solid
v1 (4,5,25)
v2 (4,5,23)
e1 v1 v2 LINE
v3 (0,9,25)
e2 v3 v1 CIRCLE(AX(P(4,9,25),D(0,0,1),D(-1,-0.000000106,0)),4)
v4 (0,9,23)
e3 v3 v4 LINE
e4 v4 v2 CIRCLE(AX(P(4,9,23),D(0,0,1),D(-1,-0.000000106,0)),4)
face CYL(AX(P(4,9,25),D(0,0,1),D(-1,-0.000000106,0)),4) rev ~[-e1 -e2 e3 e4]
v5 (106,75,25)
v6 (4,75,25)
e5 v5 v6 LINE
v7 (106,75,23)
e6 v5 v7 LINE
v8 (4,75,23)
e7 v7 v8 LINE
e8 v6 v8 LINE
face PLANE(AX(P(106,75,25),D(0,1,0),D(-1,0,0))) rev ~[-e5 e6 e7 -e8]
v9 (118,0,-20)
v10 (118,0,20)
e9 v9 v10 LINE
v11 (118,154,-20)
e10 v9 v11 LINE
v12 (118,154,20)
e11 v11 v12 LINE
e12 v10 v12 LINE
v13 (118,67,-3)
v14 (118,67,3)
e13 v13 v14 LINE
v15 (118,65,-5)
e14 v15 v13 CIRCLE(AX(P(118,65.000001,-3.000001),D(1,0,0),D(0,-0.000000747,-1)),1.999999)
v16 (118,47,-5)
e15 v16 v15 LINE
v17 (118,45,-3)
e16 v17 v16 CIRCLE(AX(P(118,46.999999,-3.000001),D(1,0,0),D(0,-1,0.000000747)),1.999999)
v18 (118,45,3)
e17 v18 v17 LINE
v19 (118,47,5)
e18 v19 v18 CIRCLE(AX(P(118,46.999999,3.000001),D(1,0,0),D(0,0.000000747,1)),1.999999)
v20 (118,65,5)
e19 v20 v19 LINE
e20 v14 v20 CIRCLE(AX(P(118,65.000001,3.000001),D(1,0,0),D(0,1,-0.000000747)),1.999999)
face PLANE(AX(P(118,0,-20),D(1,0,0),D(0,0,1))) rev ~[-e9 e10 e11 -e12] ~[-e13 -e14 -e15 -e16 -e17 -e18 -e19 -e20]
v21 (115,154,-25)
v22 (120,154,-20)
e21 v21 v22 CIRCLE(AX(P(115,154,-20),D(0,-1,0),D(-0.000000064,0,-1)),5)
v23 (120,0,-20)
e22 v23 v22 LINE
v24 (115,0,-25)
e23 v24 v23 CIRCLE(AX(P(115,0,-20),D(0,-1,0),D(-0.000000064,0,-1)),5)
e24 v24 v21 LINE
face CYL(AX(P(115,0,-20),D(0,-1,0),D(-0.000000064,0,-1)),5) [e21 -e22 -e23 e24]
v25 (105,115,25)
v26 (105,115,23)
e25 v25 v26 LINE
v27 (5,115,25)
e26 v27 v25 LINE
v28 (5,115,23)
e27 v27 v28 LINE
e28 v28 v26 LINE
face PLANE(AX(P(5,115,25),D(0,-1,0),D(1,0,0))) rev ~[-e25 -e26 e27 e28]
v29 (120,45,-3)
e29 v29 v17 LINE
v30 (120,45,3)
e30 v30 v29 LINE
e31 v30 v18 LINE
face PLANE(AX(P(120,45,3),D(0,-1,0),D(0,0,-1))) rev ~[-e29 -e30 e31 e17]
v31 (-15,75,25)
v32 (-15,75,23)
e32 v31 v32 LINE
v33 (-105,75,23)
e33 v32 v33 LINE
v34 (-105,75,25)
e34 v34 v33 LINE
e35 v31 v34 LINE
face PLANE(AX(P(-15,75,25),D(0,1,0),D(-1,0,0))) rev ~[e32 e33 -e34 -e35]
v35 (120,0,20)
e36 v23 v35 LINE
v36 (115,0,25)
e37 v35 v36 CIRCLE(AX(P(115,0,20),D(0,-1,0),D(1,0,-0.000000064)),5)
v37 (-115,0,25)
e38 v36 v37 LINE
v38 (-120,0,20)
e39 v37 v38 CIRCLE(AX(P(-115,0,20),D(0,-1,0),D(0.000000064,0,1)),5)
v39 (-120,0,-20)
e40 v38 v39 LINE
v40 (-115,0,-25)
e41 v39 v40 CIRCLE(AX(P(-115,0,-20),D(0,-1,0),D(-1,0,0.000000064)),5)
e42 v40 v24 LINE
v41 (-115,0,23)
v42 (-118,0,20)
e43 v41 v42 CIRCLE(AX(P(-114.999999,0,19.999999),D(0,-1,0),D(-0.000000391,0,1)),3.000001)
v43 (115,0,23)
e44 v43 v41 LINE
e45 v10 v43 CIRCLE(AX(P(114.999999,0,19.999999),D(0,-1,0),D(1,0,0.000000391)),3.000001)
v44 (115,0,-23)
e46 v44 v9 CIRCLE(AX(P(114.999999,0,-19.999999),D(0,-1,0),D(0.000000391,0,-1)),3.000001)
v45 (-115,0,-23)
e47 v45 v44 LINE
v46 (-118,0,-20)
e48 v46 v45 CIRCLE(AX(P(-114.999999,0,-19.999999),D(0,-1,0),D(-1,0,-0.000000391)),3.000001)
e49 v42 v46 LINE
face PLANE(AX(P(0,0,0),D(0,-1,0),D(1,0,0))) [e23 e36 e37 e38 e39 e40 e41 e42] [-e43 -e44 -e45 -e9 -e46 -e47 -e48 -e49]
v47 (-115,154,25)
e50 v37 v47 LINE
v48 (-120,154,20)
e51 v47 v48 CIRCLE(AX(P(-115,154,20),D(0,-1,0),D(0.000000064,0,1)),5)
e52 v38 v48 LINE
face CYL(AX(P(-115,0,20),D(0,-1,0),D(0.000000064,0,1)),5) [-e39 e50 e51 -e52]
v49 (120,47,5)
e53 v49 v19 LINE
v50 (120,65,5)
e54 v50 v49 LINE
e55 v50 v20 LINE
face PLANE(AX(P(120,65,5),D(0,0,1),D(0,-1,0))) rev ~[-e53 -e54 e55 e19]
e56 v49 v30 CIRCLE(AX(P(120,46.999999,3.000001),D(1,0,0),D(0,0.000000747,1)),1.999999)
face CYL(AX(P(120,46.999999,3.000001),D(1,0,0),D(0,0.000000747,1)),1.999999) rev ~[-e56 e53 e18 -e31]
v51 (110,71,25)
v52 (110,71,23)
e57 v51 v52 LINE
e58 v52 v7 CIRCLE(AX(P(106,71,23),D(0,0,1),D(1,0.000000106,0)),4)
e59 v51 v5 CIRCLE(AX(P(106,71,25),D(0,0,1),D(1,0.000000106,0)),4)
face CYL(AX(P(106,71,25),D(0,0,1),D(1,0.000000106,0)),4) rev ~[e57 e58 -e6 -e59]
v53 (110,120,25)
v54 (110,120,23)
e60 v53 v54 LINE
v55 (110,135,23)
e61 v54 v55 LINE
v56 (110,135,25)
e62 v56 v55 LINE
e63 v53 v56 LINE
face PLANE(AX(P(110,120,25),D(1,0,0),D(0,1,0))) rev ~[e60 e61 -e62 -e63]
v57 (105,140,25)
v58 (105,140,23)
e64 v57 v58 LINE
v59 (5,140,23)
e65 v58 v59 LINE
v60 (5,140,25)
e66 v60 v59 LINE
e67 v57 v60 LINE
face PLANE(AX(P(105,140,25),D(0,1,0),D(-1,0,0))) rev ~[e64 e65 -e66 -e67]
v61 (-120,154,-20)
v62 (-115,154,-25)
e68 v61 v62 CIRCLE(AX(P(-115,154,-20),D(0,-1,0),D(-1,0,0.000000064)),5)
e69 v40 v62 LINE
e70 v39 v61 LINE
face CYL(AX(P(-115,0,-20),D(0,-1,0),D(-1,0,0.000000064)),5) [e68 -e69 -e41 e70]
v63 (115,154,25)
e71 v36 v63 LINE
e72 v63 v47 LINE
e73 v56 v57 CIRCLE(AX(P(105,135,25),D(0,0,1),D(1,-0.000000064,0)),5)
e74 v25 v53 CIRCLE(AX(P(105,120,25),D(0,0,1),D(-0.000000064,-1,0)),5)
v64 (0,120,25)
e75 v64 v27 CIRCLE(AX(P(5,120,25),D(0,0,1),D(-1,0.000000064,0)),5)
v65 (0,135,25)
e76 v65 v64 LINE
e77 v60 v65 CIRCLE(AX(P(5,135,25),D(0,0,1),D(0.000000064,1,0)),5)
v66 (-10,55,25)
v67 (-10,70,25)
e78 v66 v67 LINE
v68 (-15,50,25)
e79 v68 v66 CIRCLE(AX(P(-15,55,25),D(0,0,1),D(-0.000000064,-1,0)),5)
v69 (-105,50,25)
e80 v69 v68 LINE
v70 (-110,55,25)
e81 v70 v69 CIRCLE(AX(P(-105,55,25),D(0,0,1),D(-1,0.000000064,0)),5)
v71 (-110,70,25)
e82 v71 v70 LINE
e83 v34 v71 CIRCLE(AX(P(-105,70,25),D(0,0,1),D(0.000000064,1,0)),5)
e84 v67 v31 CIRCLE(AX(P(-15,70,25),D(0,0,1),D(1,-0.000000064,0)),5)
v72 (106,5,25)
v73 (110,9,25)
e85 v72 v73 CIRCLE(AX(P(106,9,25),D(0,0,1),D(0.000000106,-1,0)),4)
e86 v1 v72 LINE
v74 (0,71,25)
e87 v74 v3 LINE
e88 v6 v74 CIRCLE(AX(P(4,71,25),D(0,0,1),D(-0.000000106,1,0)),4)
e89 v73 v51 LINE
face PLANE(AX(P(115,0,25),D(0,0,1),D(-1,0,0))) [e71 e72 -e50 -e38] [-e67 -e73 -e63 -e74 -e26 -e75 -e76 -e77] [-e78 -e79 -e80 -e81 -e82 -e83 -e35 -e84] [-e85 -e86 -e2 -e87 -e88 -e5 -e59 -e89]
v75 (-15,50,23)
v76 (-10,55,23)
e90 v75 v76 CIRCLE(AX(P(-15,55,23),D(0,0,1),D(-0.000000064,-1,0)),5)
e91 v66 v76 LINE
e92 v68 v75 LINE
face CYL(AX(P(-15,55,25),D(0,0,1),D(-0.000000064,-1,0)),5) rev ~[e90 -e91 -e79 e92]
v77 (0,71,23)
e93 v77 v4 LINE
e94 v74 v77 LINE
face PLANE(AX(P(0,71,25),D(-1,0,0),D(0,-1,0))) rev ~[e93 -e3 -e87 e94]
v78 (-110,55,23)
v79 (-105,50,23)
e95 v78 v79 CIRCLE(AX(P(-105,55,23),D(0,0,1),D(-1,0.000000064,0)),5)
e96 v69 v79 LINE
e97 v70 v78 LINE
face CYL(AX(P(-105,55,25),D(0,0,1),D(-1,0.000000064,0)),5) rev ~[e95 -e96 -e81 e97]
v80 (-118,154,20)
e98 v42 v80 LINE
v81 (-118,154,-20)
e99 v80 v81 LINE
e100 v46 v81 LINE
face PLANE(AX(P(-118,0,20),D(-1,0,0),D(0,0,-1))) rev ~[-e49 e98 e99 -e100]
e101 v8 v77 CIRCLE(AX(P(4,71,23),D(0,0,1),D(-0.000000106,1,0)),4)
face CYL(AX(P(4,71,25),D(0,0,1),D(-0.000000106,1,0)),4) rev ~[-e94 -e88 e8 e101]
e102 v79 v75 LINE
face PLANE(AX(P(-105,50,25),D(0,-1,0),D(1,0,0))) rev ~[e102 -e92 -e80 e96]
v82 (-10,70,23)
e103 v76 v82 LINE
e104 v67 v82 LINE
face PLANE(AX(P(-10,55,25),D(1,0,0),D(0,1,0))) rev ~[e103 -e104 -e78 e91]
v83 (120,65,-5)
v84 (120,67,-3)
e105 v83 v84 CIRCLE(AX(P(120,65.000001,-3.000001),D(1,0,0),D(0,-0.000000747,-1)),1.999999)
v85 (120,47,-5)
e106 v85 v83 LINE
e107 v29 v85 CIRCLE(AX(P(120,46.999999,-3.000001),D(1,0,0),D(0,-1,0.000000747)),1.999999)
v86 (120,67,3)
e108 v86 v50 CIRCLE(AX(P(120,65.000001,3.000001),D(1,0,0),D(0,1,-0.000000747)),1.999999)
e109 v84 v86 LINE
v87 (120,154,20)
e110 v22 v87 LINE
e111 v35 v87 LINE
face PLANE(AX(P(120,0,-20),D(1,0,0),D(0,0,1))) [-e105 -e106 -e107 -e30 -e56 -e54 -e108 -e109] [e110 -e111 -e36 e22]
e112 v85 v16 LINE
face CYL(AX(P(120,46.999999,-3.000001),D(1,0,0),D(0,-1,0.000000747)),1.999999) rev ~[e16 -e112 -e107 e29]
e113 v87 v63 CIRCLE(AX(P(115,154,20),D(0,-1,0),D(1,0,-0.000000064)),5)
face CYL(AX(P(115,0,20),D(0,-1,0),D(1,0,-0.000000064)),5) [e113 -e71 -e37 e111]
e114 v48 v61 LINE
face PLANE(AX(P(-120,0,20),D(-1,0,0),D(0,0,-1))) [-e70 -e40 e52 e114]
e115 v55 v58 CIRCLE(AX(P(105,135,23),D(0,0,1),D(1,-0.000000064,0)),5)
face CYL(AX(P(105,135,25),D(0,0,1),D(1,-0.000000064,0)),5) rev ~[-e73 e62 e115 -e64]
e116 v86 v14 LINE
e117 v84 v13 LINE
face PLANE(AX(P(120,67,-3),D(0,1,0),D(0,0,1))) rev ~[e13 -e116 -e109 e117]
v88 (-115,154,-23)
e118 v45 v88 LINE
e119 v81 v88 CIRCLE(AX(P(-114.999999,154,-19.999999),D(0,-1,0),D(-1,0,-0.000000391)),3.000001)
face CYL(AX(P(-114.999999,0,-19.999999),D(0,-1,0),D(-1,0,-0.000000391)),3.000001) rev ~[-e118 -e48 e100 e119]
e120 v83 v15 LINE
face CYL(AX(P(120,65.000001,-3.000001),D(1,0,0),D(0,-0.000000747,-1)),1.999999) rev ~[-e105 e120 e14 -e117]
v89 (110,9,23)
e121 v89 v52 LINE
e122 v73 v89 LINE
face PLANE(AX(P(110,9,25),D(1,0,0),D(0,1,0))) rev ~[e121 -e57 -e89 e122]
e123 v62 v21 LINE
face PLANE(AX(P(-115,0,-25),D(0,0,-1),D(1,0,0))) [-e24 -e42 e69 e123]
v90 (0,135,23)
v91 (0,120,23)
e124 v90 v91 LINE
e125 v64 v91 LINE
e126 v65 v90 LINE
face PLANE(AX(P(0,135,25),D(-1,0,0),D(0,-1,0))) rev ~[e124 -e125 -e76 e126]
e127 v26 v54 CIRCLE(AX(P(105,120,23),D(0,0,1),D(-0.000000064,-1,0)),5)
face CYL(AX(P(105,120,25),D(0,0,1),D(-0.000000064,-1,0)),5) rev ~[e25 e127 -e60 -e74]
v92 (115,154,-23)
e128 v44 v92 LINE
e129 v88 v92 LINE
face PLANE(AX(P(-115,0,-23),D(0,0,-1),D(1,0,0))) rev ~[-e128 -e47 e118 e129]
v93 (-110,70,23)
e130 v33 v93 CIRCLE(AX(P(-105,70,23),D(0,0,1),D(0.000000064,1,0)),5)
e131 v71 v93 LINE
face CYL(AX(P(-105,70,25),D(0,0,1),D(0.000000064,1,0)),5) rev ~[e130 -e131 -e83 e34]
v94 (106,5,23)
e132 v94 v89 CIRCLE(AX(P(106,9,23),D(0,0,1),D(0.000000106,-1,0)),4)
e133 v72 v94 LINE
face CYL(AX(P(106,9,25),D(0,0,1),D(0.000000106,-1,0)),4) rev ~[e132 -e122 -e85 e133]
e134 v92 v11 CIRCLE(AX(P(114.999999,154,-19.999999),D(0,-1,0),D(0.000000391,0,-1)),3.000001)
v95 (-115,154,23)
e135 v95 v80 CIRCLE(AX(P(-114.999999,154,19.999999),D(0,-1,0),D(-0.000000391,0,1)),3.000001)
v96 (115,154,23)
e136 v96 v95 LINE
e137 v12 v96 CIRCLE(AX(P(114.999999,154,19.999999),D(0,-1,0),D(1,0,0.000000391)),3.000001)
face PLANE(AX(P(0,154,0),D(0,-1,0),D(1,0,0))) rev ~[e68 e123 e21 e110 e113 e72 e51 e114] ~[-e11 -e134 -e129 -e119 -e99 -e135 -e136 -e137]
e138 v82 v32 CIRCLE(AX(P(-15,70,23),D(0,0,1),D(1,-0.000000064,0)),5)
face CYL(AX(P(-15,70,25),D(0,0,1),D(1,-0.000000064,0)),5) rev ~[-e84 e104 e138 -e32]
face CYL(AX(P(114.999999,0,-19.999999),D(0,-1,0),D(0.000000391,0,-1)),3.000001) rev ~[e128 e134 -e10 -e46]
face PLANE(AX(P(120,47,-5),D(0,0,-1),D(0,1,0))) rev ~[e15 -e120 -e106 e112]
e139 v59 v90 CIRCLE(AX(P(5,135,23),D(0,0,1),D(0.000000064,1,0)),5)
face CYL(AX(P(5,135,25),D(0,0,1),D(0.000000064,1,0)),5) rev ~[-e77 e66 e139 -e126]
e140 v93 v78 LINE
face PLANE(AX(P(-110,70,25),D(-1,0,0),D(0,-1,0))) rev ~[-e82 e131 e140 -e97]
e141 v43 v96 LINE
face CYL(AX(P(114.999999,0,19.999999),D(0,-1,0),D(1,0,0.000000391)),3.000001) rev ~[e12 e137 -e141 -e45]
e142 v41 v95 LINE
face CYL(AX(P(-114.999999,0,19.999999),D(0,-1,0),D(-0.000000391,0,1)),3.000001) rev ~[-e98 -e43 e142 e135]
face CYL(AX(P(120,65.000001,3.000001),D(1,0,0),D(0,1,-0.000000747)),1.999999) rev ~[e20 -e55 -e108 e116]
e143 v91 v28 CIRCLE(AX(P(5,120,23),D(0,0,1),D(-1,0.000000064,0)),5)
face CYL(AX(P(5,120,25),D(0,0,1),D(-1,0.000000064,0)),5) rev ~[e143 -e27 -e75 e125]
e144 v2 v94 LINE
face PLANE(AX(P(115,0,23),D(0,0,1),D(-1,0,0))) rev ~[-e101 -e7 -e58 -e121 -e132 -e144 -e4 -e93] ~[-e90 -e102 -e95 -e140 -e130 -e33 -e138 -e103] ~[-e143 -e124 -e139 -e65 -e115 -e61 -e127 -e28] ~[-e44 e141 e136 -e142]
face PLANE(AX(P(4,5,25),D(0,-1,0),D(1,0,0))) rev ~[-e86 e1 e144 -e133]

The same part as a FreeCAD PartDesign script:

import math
import FreeCAD as App
import Part
import Sketcher

V = App.Vector

doc = App.newDocument("Part")
body = doc.addObject("PartDesign::Body", "Body")

sketch1 = body.newObject("Sketcher::SketchObject", "Sketch")
sketch1.AttachmentSupport = (doc.getObject("XZ_Plane"), [""])
sketch1.MapMode = "FlatFace"
sketch1.addGeometry([
    Part.LineSegment(V(-120, 20, 0), V(-120, -20, 0)),
    Part.ArcOfCircle(Part.Circle(V(-115, -20, 0), V(0, 0, 1), 5), math.radians(180), math.radians(270)),
    Part.LineSegment(V(-115, -25, 0), V(115, -25, 0)),
    Part.ArcOfCircle(Part.Circle(V(115, -20, 0), V(0, 0, 1), 5), math.radians(-90), math.radians(0)),
    Part.LineSegment(V(120, -20, 0), V(120, 20, 0)),
    Part.ArcOfCircle(Part.Circle(V(115, 20, 0), V(0, 0, 1), 5), math.radians(0), math.radians(90)),
    Part.LineSegment(V(115, 25, 0), V(-115, 25, 0)),
    Part.ArcOfCircle(Part.Circle(V(-115, 20, 0), V(0, 0, 1), 5), math.radians(90), math.radians(180)),
    Part.LineSegment(V(-118, -20, 0), V(-118, 20, 0)),
    Part.ArcOfCircle(Part.Circle(V(-115, 20, 0), V(0, 0, 1), 3), math.radians(90), math.radians(180)),
    Part.LineSegment(V(-115, 23, 0), V(115, 23, 0)),
    Part.ArcOfCircle(Part.Circle(V(115, 20, 0), V(0, 0, 1), 3), math.radians(0), math.radians(90)),
    Part.LineSegment(V(118, 20, 0), V(118, -20, 0)),
    Part.ArcOfCircle(Part.Circle(V(115, -20, 0), V(0, 0, 1), 3), math.radians(-90), math.radians(0)),
    Part.LineSegment(V(115, -23, 0), V(-115, -23, 0)),
    Part.ArcOfCircle(Part.Circle(V(-115, -20, 0), V(0, 0, 1), 3), math.radians(-180), math.radians(-90)),
], False)
sketch1.addConstraint([
    Sketcher.Constraint("Tangent", 0, 2, 1, 1),
    Sketcher.Constraint("Tangent", 1, 2, 2, 1),
    Sketcher.Constraint("Tangent", 2, 2, 3, 1),
    Sketcher.Constraint("Tangent", 3, 2, 4, 1),
    Sketcher.Constraint("Tangent", 4, 2, 5, 1),
    Sketcher.Constraint("Tangent", 5, 2, 6, 1),
    Sketcher.Constraint("Tangent", 6, 2, 7, 1),
    Sketcher.Constraint("Tangent", 7, 2, 0, 1),
    Sketcher.Constraint("Tangent", 8, 2, 9, 2),
    Sketcher.Constraint("Tangent", 9, 1, 10, 1),
    Sketcher.Constraint("Tangent", 10, 2, 11, 2),
    Sketcher.Constraint("Tangent", 11, 1, 12, 1),
    Sketcher.Constraint("Tangent", 12, 2, 13, 2),
    Sketcher.Constraint("Tangent", 13, 1, 14, 1),
    Sketcher.Constraint("Tangent", 14, 2, 15, 2),
    Sketcher.Constraint("Tangent", 15, 1, 8, 1),
    Sketcher.Constraint("Vertical", 0),
    Sketcher.Constraint("Horizontal", 2),
    Sketcher.Constraint("Vertical", 4),
    Sketcher.Constraint("Horizontal", 6),
    Sketcher.Constraint("Vertical", 8),
    Sketcher.Constraint("Horizontal", 10),
    Sketcher.Constraint("Vertical", 12),
    Sketcher.Constraint("Horizontal", 14),
    Sketcher.Constraint("Coincident", 9, 3, 7, 3),
    Sketcher.Constraint("Coincident", 11, 3, 5, 3),
    Sketcher.Constraint("Coincident", 13, 3, 3, 3),
    Sketcher.Constraint("Equal", 1, 3),
    Sketcher.Constraint("Equal", 3, 5),
    Sketcher.Constraint("Equal", 5, 7),
    Sketcher.Constraint("Equal", 13, 15),
    Sketcher.Constraint("Symmetric", 1, 3, 5, 3, -1, 1),
    Sketcher.Constraint("Radius", 1, 5.0),
    Sketcher.Constraint("Radius", 9, 3.000001),
    Sketcher.Constraint("DistanceX", 2, 1, 2, 2, 230.0),
    Sketcher.Constraint("DistanceY", 0, 2, 0, 1, 40.0),
])
pad1 = body.newObject("PartDesign::Pad", "Pad")
pad1.Profile = sketch1
pad1.Length = 154
pad1.Reversed = True

sketch2 = body.newObject("Sketcher::SketchObject", "Sketch001")
sketch2.AttachmentSupport = (doc.getObject("XY_Plane"), [""])
sketch2.MapMode = "FlatFace"
sketch2.AttachmentOffset = App.Placement(V(0, 0, 25), App.Rotation())
sketch2.addGeometry([
    Part.LineSegment(V(106, 75, 0), V(4, 75, 0)),
    Part.ArcOfCircle(Part.Circle(V(4, 71, 0), V(0, 0, 1), 4), math.radians(90), math.radians(180)),
    Part.LineSegment(V(0, 71, 0), V(0, 9, 0)),
    Part.ArcOfCircle(Part.Circle(V(4, 9, 0), V(0, 0, 1), 4), math.radians(-180), math.radians(-90)),
    Part.LineSegment(V(4, 5, 0), V(106, 5, 0)),
    Part.ArcOfCircle(Part.Circle(V(106, 9, 0), V(0, 0, 1), 4), math.radians(-90), math.radians(0)),
    Part.LineSegment(V(110, 9, 0), V(110, 71, 0)),
    Part.ArcOfCircle(Part.Circle(V(106, 71, 0), V(0, 0, 1), 4), math.radians(0), math.radians(90)),
    Part.LineSegment(V(-110, 70, 0), V(-110, 55, 0)),
    Part.ArcOfCircle(Part.Circle(V(-105, 55, 0), V(0, 0, 1), 5), math.radians(180), math.radians(270)),
    Part.LineSegment(V(-105, 50, 0), V(-15, 50, 0)),
    Part.ArcOfCircle(Part.Circle(V(-15, 55, 0), V(0, 0, 1), 5), math.radians(-90), math.radians(0)),
    Part.LineSegment(V(-10, 55, 0), V(-10, 70, 0)),
    Part.ArcOfCircle(Part.Circle(V(-15, 70, 0), V(0, 0, 1), 5), math.radians(0), math.radians(90)),
    Part.LineSegment(V(-15, 75, 0), V(-105, 75, 0)),
    Part.ArcOfCircle(Part.Circle(V(-105, 70, 0), V(0, 0, 1), 5), math.radians(90), math.radians(180)),
    Part.LineSegment(V(0, 135, 0), V(0, 120, 0)),
    Part.ArcOfCircle(Part.Circle(V(5, 120, 0), V(0, 0, 1), 5), math.radians(180), math.radians(270)),
    Part.LineSegment(V(5, 115, 0), V(105, 115, 0)),
    Part.ArcOfCircle(Part.Circle(V(105, 120, 0), V(0, 0, 1), 5), math.radians(-90), math.radians(0)),
    Part.LineSegment(V(110, 120, 0), V(110, 135, 0)),
    Part.ArcOfCircle(Part.Circle(V(105, 135, 0), V(0, 0, 1), 5), math.radians(0), math.radians(90)),
    Part.LineSegment(V(105, 140, 0), V(5, 140, 0)),
    Part.ArcOfCircle(Part.Circle(V(5, 135, 0), V(0, 0, 1), 5), math.radians(90), math.radians(180)),
], False)
sketch2.addConstraint([
    Sketcher.Constraint("Tangent", 0, 2, 1, 1),
    Sketcher.Constraint("Tangent", 1, 2, 2, 1),
    Sketcher.Constraint("Tangent", 2, 2, 3, 1),
    Sketcher.Constraint("Tangent", 3, 2, 4, 1),
    Sketcher.Constraint("Tangent", 4, 2, 5, 1),
    Sketcher.Constraint("Tangent", 5, 2, 6, 1),
    Sketcher.Constraint("Tangent", 6, 2, 7, 1),
    Sketcher.Constraint("Tangent", 7, 2, 0, 1),
    Sketcher.Constraint("Tangent", 8, 2, 9, 1),
    Sketcher.Constraint("Tangent", 9, 2, 10, 1),
    Sketcher.Constraint("Tangent", 10, 2, 11, 1),
    Sketcher.Constraint("Tangent", 11, 2, 12, 1),
    Sketcher.Constraint("Tangent", 12, 2, 13, 1),
    Sketcher.Constraint("Tangent", 13, 2, 14, 1),
    Sketcher.Constraint("Tangent", 14, 2, 15, 1),
    Sketcher.Constraint("Tangent", 15, 2, 8, 1),
    Sketcher.Constraint("Tangent", 16, 2, 17, 1),
    Sketcher.Constraint("Tangent", 17, 2, 18, 1),
    Sketcher.Constraint("Tangent", 18, 2, 19, 1),
    Sketcher.Constraint("Tangent", 19, 2, 20, 1),
    Sketcher.Constraint("Tangent", 20, 2, 21, 1),
    Sketcher.Constraint("Tangent", 21, 2, 22, 1),
    Sketcher.Constraint("Tangent", 22, 2, 23, 1),
    Sketcher.Constraint("Tangent", 23, 2, 16, 1),
    Sketcher.Constraint("Horizontal", 0),
    Sketcher.Constraint("Vertical", 2),
    Sketcher.Constraint("Horizontal", 4),
    Sketcher.Constraint("Vertical", 6),
    Sketcher.Constraint("Vertical", 8),
    Sketcher.Constraint("Horizontal", 10),
    Sketcher.Constraint("Vertical", 12),
    Sketcher.Constraint("Horizontal", 14),
    Sketcher.Constraint("Vertical", 16),
    Sketcher.Constraint("Horizontal", 18),
    Sketcher.Constraint("Vertical", 20),
    Sketcher.Constraint("Horizontal", 22),
    Sketcher.Constraint("Equal", 1, 3),
    Sketcher.Constraint("Equal", 3, 5),
    Sketcher.Constraint("Equal", 5, 7),
    Sketcher.Constraint("Equal", 9, 11),
    Sketcher.Constraint("Equal", 11, 13),
    Sketcher.Constraint("Equal", 13, 15),
    Sketcher.Constraint("Equal", 15, 17),
    Sketcher.Constraint("Equal", 17, 19),
    Sketcher.Constraint("Equal", 19, 21),
    Sketcher.Constraint("Equal", 21, 23),
    Sketcher.Constraint("PointOnObject", 1, 2, -2),
    Sketcher.Constraint("PointOnObject", 16, 2, -2),
    Sketcher.Constraint("Horizontal", 7, 2, 13, 2),
    Sketcher.Constraint("Vertical", 6, 2, 19, 2),
    Sketcher.Constraint("Equal", 12, 16),
    Sketcher.Constraint("Radius", 1, 4.0),
    Sketcher.Constraint("Radius", 9, 5.0),
    Sketcher.Constraint("DistanceX", 0, 2, 0, 1, 102.0),
    Sketcher.Constraint("DistanceX", 10, 1, 10, 2, 90.0),
    Sketcher.Constraint("DistanceY", 2, 2, 2, 1, 62.0),
    Sketcher.Constraint("DistanceY", 8, 2, 8, 1, 15.0),
    Sketcher.Constraint("DistanceY", -1, 1, 1, 3, 71.0),
    Sketcher.Constraint("DistanceX", 9, 3, -1, 1, 105.0),
    Sketcher.Constraint("DistanceY", -1, 1, 17, 3, 120.0),
])
pocket1 = body.newObject("PartDesign::Pocket", "Pocket")
pocket1.Profile = sketch2
pocket1.Length = 5

sketch3 = body.newObject("Sketcher::SketchObject", "Sketch002")
sketch3.AttachmentSupport = (doc.getObject("YZ_Plane"), [""])
sketch3.MapMode = "FlatFace"
sketch3.AttachmentOffset = App.Placement(V(0, 0, 120), App.Rotation())
sketch3.addGeometry([
    Part.LineSegment(V(45, 3, 0), V(45, -3, 0)),
    Part.ArcOfCircle(Part.Circle(V(47, -3, 0), V(0, 0, 1), 2), math.radians(180), math.radians(270)),
    Part.LineSegment(V(47, -5, 0), V(65, -5, 0)),
    Part.ArcOfCircle(Part.Circle(V(65, -3, 0), V(0, 0, 1), 2), math.radians(-90), math.radians(0)),
    Part.LineSegment(V(67, -3, 0), V(67, 3, 0)),
    Part.ArcOfCircle(Part.Circle(V(65, 3, 0), V(0, 0, 1), 2), math.radians(0), math.radians(90)),
    Part.LineSegment(V(65, 5, 0), V(47, 5, 0)),
    Part.ArcOfCircle(Part.Circle(V(47, 3, 0), V(0, 0, 1), 2), math.radians(90), math.radians(180)),
], False)
sketch3.addConstraint([
    Sketcher.Constraint("Tangent", 0, 2, 1, 1),
    Sketcher.Constraint("Tangent", 1, 2, 2, 1),
    Sketcher.Constraint("Tangent", 2, 2, 3, 1),
    Sketcher.Constraint("Tangent", 3, 2, 4, 1),
    Sketcher.Constraint("Tangent", 4, 2, 5, 1),
    Sketcher.Constraint("Tangent", 5, 2, 6, 1),
    Sketcher.Constraint("Tangent", 6, 2, 7, 1),
    Sketcher.Constraint("Tangent", 7, 2, 0, 1),
    Sketcher.Constraint("Vertical", 0),
    Sketcher.Constraint("Horizontal", 2),
    Sketcher.Constraint("Vertical", 4),
    Sketcher.Constraint("Horizontal", 6),
    Sketcher.Constraint("Equal", 1, 3),
    Sketcher.Constraint("Equal", 3, 5),
    Sketcher.Constraint("Equal", 5, 7),
    Sketcher.Constraint("Radius", 1, 1.999999),
    Sketcher.Constraint("DistanceX", 2, 1, 2, 2, 18.0),
    Sketcher.Constraint("DistanceY", 0, 2, 0, 1, 6.0),
    Sketcher.Constraint("DistanceX", -1, 1, 1, 3, 46.999999),
    Sketcher.Constraint("DistanceY", 1, 3, -1, 1, 3.000001),
])
pocket2 = body.newObject("PartDesign::Pocket", "Pocket001")
pocket2.Profile = sketch3
pocket2.Length = 5

doc.recompute()
